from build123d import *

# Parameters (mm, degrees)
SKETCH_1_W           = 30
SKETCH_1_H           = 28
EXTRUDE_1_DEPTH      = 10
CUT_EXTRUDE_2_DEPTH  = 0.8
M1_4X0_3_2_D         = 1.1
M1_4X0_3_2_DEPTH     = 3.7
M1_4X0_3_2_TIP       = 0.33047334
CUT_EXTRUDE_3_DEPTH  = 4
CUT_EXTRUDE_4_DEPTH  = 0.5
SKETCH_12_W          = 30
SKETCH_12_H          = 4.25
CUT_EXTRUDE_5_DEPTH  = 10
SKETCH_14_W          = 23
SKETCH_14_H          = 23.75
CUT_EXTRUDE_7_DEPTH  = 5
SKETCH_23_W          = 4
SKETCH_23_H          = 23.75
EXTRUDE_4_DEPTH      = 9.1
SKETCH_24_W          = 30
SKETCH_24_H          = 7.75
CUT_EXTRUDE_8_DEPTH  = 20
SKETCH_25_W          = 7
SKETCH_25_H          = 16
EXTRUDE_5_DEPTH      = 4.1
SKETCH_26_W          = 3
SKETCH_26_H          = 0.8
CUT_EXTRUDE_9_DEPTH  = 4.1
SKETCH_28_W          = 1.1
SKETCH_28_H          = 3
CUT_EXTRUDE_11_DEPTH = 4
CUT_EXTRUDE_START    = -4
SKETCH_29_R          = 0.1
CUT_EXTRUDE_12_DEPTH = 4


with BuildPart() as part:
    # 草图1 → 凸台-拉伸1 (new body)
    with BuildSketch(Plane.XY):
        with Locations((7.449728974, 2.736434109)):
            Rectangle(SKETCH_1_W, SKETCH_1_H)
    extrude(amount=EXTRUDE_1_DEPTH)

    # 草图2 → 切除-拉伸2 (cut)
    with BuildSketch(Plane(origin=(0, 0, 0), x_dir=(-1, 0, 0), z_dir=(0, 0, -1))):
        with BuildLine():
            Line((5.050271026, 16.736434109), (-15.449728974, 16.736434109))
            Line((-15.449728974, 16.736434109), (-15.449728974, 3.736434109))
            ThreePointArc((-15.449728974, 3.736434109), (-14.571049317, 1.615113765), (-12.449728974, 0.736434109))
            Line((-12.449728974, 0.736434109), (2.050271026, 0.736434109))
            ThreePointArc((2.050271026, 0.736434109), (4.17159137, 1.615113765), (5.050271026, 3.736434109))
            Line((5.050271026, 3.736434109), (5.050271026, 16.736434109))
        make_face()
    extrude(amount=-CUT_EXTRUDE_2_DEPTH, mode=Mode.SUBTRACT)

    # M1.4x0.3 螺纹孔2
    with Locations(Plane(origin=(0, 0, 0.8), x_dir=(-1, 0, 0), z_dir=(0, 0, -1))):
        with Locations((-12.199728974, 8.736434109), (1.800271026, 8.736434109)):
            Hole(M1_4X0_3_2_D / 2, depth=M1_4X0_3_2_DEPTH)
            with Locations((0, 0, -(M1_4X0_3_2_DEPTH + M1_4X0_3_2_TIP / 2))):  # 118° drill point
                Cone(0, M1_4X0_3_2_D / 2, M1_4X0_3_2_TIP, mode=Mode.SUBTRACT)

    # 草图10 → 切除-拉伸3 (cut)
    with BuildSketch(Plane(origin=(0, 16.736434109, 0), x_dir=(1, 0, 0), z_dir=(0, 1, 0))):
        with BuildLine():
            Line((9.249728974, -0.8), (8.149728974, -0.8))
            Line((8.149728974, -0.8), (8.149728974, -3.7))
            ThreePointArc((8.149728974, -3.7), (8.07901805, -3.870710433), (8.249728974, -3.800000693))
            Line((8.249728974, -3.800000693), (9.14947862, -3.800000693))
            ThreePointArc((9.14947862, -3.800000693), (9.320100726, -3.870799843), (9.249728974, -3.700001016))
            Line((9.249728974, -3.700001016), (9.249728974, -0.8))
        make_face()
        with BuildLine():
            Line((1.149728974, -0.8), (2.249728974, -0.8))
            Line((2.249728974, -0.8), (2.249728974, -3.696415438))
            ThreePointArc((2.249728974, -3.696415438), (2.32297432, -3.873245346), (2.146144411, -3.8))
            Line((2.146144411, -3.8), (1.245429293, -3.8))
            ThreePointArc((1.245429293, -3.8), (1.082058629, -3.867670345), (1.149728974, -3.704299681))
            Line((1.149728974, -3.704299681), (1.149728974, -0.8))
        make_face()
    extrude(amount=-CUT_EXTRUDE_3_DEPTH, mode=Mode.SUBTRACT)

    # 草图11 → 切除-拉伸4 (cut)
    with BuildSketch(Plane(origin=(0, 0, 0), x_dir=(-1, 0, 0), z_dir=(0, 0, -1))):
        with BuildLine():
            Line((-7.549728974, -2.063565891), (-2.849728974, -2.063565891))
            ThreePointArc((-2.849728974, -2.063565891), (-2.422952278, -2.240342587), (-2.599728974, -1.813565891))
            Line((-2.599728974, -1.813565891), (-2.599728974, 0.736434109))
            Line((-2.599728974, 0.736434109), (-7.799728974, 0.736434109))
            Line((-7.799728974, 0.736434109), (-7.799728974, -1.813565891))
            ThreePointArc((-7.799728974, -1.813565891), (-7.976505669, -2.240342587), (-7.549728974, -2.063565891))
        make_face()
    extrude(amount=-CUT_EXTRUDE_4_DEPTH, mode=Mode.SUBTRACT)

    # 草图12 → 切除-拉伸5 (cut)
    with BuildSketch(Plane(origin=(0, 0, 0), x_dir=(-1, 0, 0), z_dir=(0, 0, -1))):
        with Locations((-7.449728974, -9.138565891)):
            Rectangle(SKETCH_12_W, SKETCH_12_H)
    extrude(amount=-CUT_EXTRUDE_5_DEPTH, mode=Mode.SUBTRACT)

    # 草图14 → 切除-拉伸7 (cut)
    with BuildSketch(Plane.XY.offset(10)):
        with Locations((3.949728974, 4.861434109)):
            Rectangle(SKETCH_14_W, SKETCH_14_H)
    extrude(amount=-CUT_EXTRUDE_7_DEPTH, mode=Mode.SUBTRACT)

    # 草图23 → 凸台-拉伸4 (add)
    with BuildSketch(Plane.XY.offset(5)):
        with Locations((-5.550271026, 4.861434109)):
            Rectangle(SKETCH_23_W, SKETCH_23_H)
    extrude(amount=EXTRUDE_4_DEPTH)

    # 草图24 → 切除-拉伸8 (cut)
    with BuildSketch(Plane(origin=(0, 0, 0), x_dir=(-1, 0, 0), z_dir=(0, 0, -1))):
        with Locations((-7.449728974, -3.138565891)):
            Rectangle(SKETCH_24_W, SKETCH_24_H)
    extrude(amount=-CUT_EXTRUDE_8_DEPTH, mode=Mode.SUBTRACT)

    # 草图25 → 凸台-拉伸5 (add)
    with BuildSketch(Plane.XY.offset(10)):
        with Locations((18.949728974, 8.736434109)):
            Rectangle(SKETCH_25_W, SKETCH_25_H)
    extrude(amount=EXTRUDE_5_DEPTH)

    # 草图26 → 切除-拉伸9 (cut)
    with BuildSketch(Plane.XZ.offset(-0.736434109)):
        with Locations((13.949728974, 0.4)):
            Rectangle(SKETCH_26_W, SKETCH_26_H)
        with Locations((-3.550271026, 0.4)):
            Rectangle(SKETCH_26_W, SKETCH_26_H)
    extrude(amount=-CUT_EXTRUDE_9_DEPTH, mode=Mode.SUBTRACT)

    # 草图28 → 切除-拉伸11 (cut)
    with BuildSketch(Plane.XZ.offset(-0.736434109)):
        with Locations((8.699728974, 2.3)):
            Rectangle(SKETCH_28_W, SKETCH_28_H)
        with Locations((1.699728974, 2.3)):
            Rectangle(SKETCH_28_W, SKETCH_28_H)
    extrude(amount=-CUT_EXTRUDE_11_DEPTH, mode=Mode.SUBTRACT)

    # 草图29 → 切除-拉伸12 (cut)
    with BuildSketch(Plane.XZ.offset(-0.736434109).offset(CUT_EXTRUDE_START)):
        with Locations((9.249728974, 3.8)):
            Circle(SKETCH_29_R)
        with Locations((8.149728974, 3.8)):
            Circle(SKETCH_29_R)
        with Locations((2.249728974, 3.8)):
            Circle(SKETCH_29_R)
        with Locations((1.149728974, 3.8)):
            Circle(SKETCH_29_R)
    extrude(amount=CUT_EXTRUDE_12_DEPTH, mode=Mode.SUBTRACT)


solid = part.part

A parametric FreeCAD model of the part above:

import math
import FreeCAD as App
import Part
import Sketcher
from FreeCAD import Vector


def add_polygon(sketch, points):
    """Adds a closed chain of lines whose ends are joined by coincident constraints."""
    first, n = sketch.GeometryCount, len(points)
    for a, b in zip(points, points[1:] + points[:1]):
        sketch.addGeometry(Part.LineSegment(App.Vector(*a, 0), App.Vector(*b, 0)), False)
    for i in range(n):
        sketch.addConstraint(Sketcher.Constraint("Coincident", first + i, 2, first + (i + 1) % n, 1))

doc = App.newDocument("Part")
body = doc.addObject("PartDesign::Body", "Body")

sketch1 = doc.addObject("Sketcher::SketchObject", "Sketch")
body.addObject(sketch1)
sketch1.AttachmentSupport = (doc.XY_Plane, [""])
sketch1.MapMode = "FlatFace"
add_polygon(sketch1, [(-8, 17), (-8, -11), (22, -11), (22, 17)])
sketch1.addConstraint(Sketcher.Constraint("Vertical", 0))
sketch1.addConstraint(Sketcher.Constraint("Horizontal", 1))
sketch1.addConstraint(Sketcher.Constraint("Vertical", 2))
sketch1.addConstraint(Sketcher.Constraint("Horizontal", 3))
sketch1.addConstraint(Sketcher.Constraint("DistanceX", 1, 1, 1, 2, 30.0))
sketch1.addConstraint(Sketcher.Constraint("DistanceY", 0, 2, 0, 1, 28.0))
sketch1.addConstraint(Sketcher.Constraint("DistanceX", 0, 2, -1, 1, 7.550271))
sketch1.addConstraint(Sketcher.Constraint("DistanceY", 0, 2, -1, 1, 11.263566))
pad1 = doc.addObject("PartDesign::Pad", "Pad")
body.addObject(pad1)
pad1.Profile = sketch1
pad1.Length = 10

sketch2 = doc.addObject("Sketcher::SketchObject", "Sketch001")
body.addObject(sketch2)
sketch2.AttachmentSupport = (doc.XY_Plane, [""])
sketch2.MapMode = "FlatFace"
sketch2.addGeometry(Part.LineSegment(Vector(-5.1, 16.7, 0), Vector(15.4, 16.7, 0)), False)
sketch2.addGeometry(Part.LineSegment(Vector(15.4, 16.7, 0), Vector(15.4, 3.7, 0)), False)
sketch2.addGeometry(Part.ArcOfCircle(Part.Circle(Vector(12.4, 3.7, 0), Vector(0, 0, 1), 3), math.radians(-90), math.radians(0)), False)
sketch2.addGeometry(Part.LineSegment(Vector(12.4, 0.7, 0), Vector(-2.1, 0.7, 0)), False)
sketch2.addGeometry(Part.ArcOfCircle(Part.Circle(Vector(-2.1, 3.7, 0), Vector(0, 0, 1), 3), math.radians(180), math.radians(270)), False)
sketch2.addGeometry(Part.LineSegment(Vector(-5.1, 3.7, 0), Vector(-5.1, 16.7, 0)), False)
sketch2.addConstraint(Sketcher.Constraint("Coincident", 0, 2, 1, 1))
sketch2.addConstraint(Sketcher.Constraint("Tangent", 1, 2, 2, 2))
sketch2.addConstraint(Sketcher.Constraint("Tangent", 2, 1, 3, 1))
sketch2.addConstraint(Sketcher.Constraint("Tangent", 3, 2, 4, 2))
sketch2.addConstraint(Sketcher.Constraint("Tangent", 4, 1, 5, 1))
sketch2.addConstraint(Sketcher.Constraint("Coincident", 5, 2, 0, 1))
sketch2.addConstraint(Sketcher.Constraint("Horizontal", 0))
sketch2.addConstraint(Sketcher.Constraint("Vertical", 1))
sketch2.addConstraint(Sketcher.Constraint("Horizontal", 3))
sketch2.addConstraint(Sketcher.Constraint("Vertical", 5))
sketch2.addConstraint(Sketcher.Constraint("Equal", 2, 4))
sketch2.addConstraint(Sketcher.Constraint("Radius", 2, 3.0))
sketch2.addConstraint(Sketcher.Constraint("DistanceY", 1, 2, 1, 1, 13.0))
sketch2.addConstraint(Sketcher.Constraint("DistanceX", 0, 1, 0, 2, 20.5))
sketch2.addConstraint(Sketcher.Constraint("DistanceX", -1, 1, 2, 3, 12.449729))
sketch2.addConstraint(Sketcher.Constraint("DistanceY", -1, 1, 2, 3, 3.736434))
pocket1 = doc.addObject("PartDesign::Pocket", "Pocket")
body.addObject(pocket1)
pocket1.Profile = sketch2
pocket1.Length = 0.8
pocket1.Reversed = True

sketch3 = doc.addObject("Sketcher::SketchObject", "Sketch002")
body.addObject(sketch3)
sketch3.AttachmentSupport = (doc.XY_Plane, [""])
sketch3.MapMode = "FlatFace"
sketch3.AttachmentOffset = App.Placement(Vector(0, 0, 0.8), App.Rotation())
sketch3.addGeometry(Part.Circle(Vector(12.2, 8.7, 0), Vector(0, 0, 1), 0.6), False)
sketch3.addGeometry(Part.Circle(Vector(-1.8, 8.7, 0), Vector(0, 0, 1), 0.6), False)
sketch3.addConstraint(Sketcher.Constraint("Equal", 0, 1))
sketch3.addConstraint(Sketcher.Constraint("Horizontal", 0, 3, 1, 3))
sketch3.addConstraint(Sketcher.Constraint("Diameter", 0, 1.1))
sketch3.addConstraint(Sketcher.Constraint("DistanceX", 1, 3, 0, 3, 14.0))
sketch3.addConstraint(Sketcher.Constraint("DistanceX", -1, 1, 0, 3, 12.199729))
sketch3.addConstraint(Sketcher.Constraint("DistanceY", -1, 1, 0, 3, 8.736434))
doc.recompute()
hole = doc.addObject("PartDesign::Hole", "Hole")
body.addObject(hole)
hole.Profile = sketch3
hole.ThreadType = "None"
hole.Diameter = 1.1
hole.DepthType = "Dimension"
hole.Depth = 3.7
hole.DrillPoint = "Angled"
hole.DrillPointAngle = 118
hole.Reversed = True

sketch4 = doc.addObject("Sketcher::SketchObject", "Sketch003")
body.addObject(sketch4)
sketch4.AttachmentSupport = (doc.XZ_Plane, [""])
sketch4.MapMode = "FlatFace"
sketch4.AttachmentOffset = App.Placement(Vector(0, 0, -16.736434), App.Rotation())
sketch4.addGeometry(Part.LineSegment(Vector(9.25, 0.8, 0), Vector(8.15, 0.8, 0)), False)
sketch4.addGeometry(Part.LineSegment(Vector(8.15, 0.8, 0), Vector(8.15, 3.7, 0)), False)
sketch4.addGeometry(Part.ArcOfCircle(Part.Circle(Vector(8.15, 3.8, 0), Vector(0, 0, 1), 0.1), math.radians(0), math.radians(270)), False)
sketch4.addGeometry(Part.LineSegment(Vector(8.25, 3.8, 0), Vector(9.15, 3.8, 0)), False)
sketch4.addGeometry(Part.ArcOfCircle(Part.Circle(Vector(9.25, 3.8, 0), Vector(0, 0, 1), 0.1), math.radians(-90), math.radians(180)), False)
sketch4.addGeometry(Part.LineSegment(Vector(9.25, 3.7, 0), Vector(9.25, 0.8, 0)), False)
sketch4.addGeometry(Part.LineSegment(Vector(2.25, 0.8, 0), Vector(1.15, 0.8, 0)), False)
sketch4.addGeometry(Part.LineSegment(Vector(1.15, 0.8, 0), Vector(1.15, 3.7, 0)), False)
sketch4.addGeometry(Part.ArcOfCircle(Part.Circle(Vector(1.15, 3.8, 0), Vector(0, 0, 1), 0.1), math.radians(0), math.radians(270)), False)
sketch4.addGeometry(Part.LineSegment(Vector(1.25, 3.8, 0), Vector(2.15, 3.8, 0)), False)
sketch4.addGeometry(Part.ArcOfCircle(Part.Circle(Vector(2.25, 3.8, 0), Vector(0, 0, 1), 0.1), math.radians(-90), math.radians(180)), False)
sketch4.addGeometry(Part.LineSegment(Vector(2.25, 3.7, 0), Vector(2.25, 0.8, 0)), False)
sketch4.addConstraint(Sketcher.Constraint("Coincident", 0, 2, 1, 1))
sketch4.addConstraint(Sketcher.Constraint("Coincident", 1, 2, 2, 2))
sketch4.addConstraint(Sketcher.Constraint("Coincident", 2, 1, 3, 1))
sketch4.addConstraint(Sketcher.Constraint("Coincident", 3, 2, 4, 2))
sketch4.addConstraint(Sketcher.Constraint("Coincident", 4, 1, 5, 1))
sketch4.addConstraint(Sketcher.Constraint("Coincident", 5, 2, 0, 1))
sketch4.addConstraint(Sketcher.Constraint("Coincident", 6, 2, 7, 1))
sketch4.addConstraint(Sketcher.Constraint("Coincident", 7, 2, 8, 2))
sketch4.addConstraint(Sketcher.Constraint("Coincident", 8, 1, 9, 1))
sketch4.addConstraint(Sketcher.Constraint("Coincident", 9, 2, 10, 2))
sketch4.addConstraint(Sketcher.Constraint("Coincident", 10, 1, 11, 1))
sketch4.addConstraint(Sketcher.Constraint("Coincident", 11, 2, 6, 1))
sketch4.addConstraint(Sketcher.Constraint("Horizontal", 0))
sketch4.addConstraint(Sketcher.Constraint("Vertical", 1))
sketch4.addConstraint(Sketcher.Constraint("Horizontal", 3))
sketch4.addConstraint(Sketcher.Constraint("Vertical", 5))
sketch4.addConstraint(Sketcher.Constraint("Horizontal", 6))
sketch4.addConstraint(Sketcher.Constraint("Vertical", 7))
sketch4.addConstraint(Sketcher.Constraint("Horizontal", 9))
sketch4.addConstraint(Sketcher.Constraint("Vertical", 11))
sketch4.addConstraint(Sketcher.Constraint("Equal", 2, 4))
sketch4.addConstraint(Sketcher.Constraint("Horizontal", 2, 3, 4, 3))
sketch4.addConstraint(Sketcher.Constraint("Horizontal", 4, 3, 8, 3))
sketch4.addConstraint(Sketcher.Constraint("Horizontal", 8, 3, 10, 3))
sketch4.addConstraint(Sketcher.Constraint("Horizontal", 10, 3, 2, 1))
sketch4.addConstraint(Sketcher.Constraint("Horizontal", 5, 2, 6, 2))
sketch4.addConstraint(Sketcher.Constraint("Horizontal", 3, 2, 8, 1))
sketch4.addConstraint(Sketcher.Constraint("Vertical", 2, 3, 0, 2))
sketch4.addConstraint(Sketcher.Constraint("Vertical", 8, 3, 6, 2))
sketch4.addConstraint(Sketcher.Constraint("Equal", 0, 6))
sketch4.addConstraint(Sketcher.Constraint("Radius", 2, 0.1))
sketch4.addConstraint(Sketcher.Constraint("DistanceX", 0, 2, 0, 1, 1.1))
sketch4.addConstraint(Sketcher.Constraint("DistanceY", 1, 1, 1, 2, 2.9))
sketch4.addConstraint(Sketcher.Constraint("DistanceX", 8, 3, 2, 3, 7.0))
sketch4.addConstraint(Sketcher.Constraint("DistanceX", 10, 3, 2, 1, 6.0))
sketch4.addConstraint(Sketcher.Constraint("DistanceY", -1, 1, 2, 3, 3.8))
sketch4.addConstraint(Sketcher.Constraint("Radius", 8, 0.0957))
sketch4.addConstraint(Sketcher.Constraint("Radius", 10, 0.103585))
sketch4.addConstraint(Sketcher.Constraint("DistanceX", 3, 1, 3, 2, 0.89975))
sketch4.addConstraint(Sketcher.Constraint("DistanceX", -1, 1, 2, 3, 8.149729))
pocket2 = doc.addObject("PartDesign::Pocket", "Pocket001")
body.addObject(pocket2)
pocket2.Profile = sketch4
pocket2.Length = 4
pocket2.Reversed = True

sketch5 = doc.addObject("Sketcher::SketchObject", "Sketch004")
body.addObject(sketch5)
sketch5.AttachmentSupport = (doc.XY_Plane, [""])
sketch5.MapMode = "FlatFace"
sketch5.addGeometry(Part.LineSegment(Vector(7.55, -2.06, 0), Vector(2.85, -2.06, 0)), False)
sketch5.addGeometry(Part.ArcOfCircle(Part.Circle(Vector(2.6, -2.06, 0), Vector(0, 0, 1), 0.25), math.radians(90), math.radians(360)), False)
sketch5.addGeometry(Part.LineSegment(Vector(2.6, -1.81, 0), Vector(2.6, 0.74, 0)), False)
sketch5.addGeometry(Part.LineSegment(Vector(2.6, 0.74, 0), Vector(7.8, 0.74, 0)), False)
sketch5.addGeometry(Part.LineSegment(Vector(7.8, 0.74, 0), Vector(7.8, -1.81, 0)), False)
sketch5.addGeometry(Part.ArcOfCircle(Part.Circle(Vector(7.8, -2.06, 0), Vector(0, 0, 1), 0.25), math.radians(180), math.radians(450)), False)
sketch5.addConstraint(Sketcher.Constraint("Coincident", 0, 2, 1, 2))
sketch5.addConstraint(Sketcher.Constraint("Coincident", 1, 1, 2, 1))
sketch5.addConstraint(Sketcher.Constraint("Coincident", 2, 2, 3, 1))
sketch5.addConstraint(Sketcher.Constraint("Coincident", 3, 2, 4, 1))
sketch5.addConstraint(Sketcher.Constraint("Coincident", 4, 2, 5, 2))
sketch5.addConstraint(Sketcher.Constraint("Coincident", 5, 1, 0, 1))
sketch5.addConstraint(Sketcher.Constraint("Horizontal", 0))
sketch5.addConstraint(Sketcher.Constraint("Vertical", 2))
sketch5.addConstraint(Sketcher.Constraint("Horizontal", 3))
sketch5.addConstraint(Sketcher.Constraint("Vertical", 4))
sketch5.addConstraint(Sketcher.Constraint("Equal", 1, 5))
sketch5.addConstraint(Sketcher.Constraint("Horizontal", 1, 3, 5, 3))
sketch5.addConstraint(Sketcher.Constraint("Horizontal", 5, 3, 0, 2))
sketch5.addConstraint(Sketcher.Constraint("Vertical", 5, 3, 3, 2))
sketch5.addConstraint(Sketcher.Constraint("Radius", 1, 0.25))
sketch5.addConstraint(Sketcher.Constraint("DistanceX", 0, 2, 0, 1, 4.7))
sketch5.addConstraint(Sketcher.Constraint("DistanceX", 3, 1, 3, 2, 5.2))
sketch5.addConstraint(Sketcher.Constraint("DistanceY", 2, 1, 2, 2, 2.55))
sketch5.addConstraint(Sketcher.Constraint("DistanceX", -1, 1, 1, 3, 2.599729))
sketch5.addConstraint(Sketcher.Constraint("DistanceY", 1, 3, -1, 1, 2.063566))
pocket3 = doc.addObject("PartDesign::Pocket", "Pocket002")
body.addObject(pocket3)
pocket3.Profile = sketch5
pocket3.Length = 0.5
pocket3.Reversed = True

sketch6 = doc.addObject("Sketcher::SketchObject", "Sketch005")
body.addObject(sketch6)
sketch6.AttachmentSupport = (doc.XY_Plane, [""])
sketch6.MapMode = "FlatFace"
add_polygon(sketch6, [(22.4, -7), (22.4, -11.3), (-7.6, -11.3), (-7.6, -7)])
sketch6.addConstraint(Sketcher.Constraint("Vertical", 0))
sketch6.addConstraint(Sketcher.Constraint("Horizontal", 1))
sketch6.addConstraint(Sketcher.Constraint("Vertical", 2))
sketch6.addConstraint(Sketcher.Constraint("Horizontal", 3))
sketch6.addConstraint(Sketcher.Constraint("DistanceX", 1, 2, 1, 1, 30.0))
sketch6.addConstraint(Sketcher.Constraint("DistanceY", 0, 2, 0, 1, 4.25))
sketch6.addConstraint(Sketcher.Constraint("DistanceX", -1, 1, 0, 2, 22.449729))
sketch6.addConstraint(Sketcher.Constraint("DistanceY", 0, 2, -1, 1, 11.263566))
pocket4 = doc.addObject("PartDesign::Pocket", "Pocket003")
body.addObject(pocket4)
pocket4.Profile = sketch6
pocket4.Length = 10
pocket4.Reversed = True

sketch7 = doc.addObject("Sketcher::SketchObject", "Sketch006")
body.addObject(sketch7)
sketch7.AttachmentSupport = (doc.XY_Plane, [""])
sketch7.MapMode = "FlatFace"
sketch7.AttachmentOffset = App.Placement(Vector(0, 0, 10), App.Rotation())
add_polygon(sketch7, [(-8, 17), (-8, -7), (15, -7), (15, 17)])
sketch7.addConstraint(Sketcher.Constraint("Vertical", 0))
sketch7.addConstraint(Sketcher.Constraint("Horizontal", 1))
sketch7.addConstraint(Sketcher.Constraint("Vertical", 2))
sketch7.addConstraint(Sketcher.Constraint("Horizontal", 3))
sketch7.addConstraint(Sketcher.Constraint("DistanceX", 1, 1, 1, 2, 23.0))
sketch7.addConstraint(Sketcher.Constraint("DistanceY", 0, 2, 0, 1, 23.75))
sketch7.addConstraint(Sketcher.Constraint("DistanceX", 0, 2, -1, 1, 7.550271))
sketch7.addConstraint(Sketcher.Constraint("DistanceY", 0, 2, -1, 1, 7.013566))
pocket5 = doc.addObject("PartDesign::Pocket", "Pocket004")
body.addObject(pocket5)
pocket5.Profile = sketch7
pocket5.Length = 5

sketch8 = doc.addObject("Sketcher::SketchObject", "Sketch007")
body.addObject(sketch8)
sketch8.AttachmentSupport = (doc.XY_Plane, [""])
sketch8.MapMode = "FlatFace"
sketch8.AttachmentOffset = App.Placement(Vector(0, 0, 5), App.Rotation())
add_polygon(sketch8, [(-7.6, 16.7), (-7.6, -7), (-3.6, -7), (-3.6, 16.7)])
sketch8.addConstraint(Sketcher.Constraint("Vertical", 0))
sketch8.addConstraint(Sketcher.Constraint("Horizontal", 1))
sketch8.addConstraint(Sketcher.Constraint("Vertical", 2))
sketch8.addConstraint(Sketcher.Constraint("Horizontal", 3))
sketch8.addConstraint(Sketcher.Constraint("DistanceX", 1, 1, 1, 2, 4.0))
sketch8.addConstraint(Sketcher.Constraint("DistanceY", 0, 2, 0, 1, 23.75))
sketch8.addConstraint(Sketcher.Constraint("DistanceX", 0, 2, -1, 1, 7.550271))
sketch8.addConstraint(Sketcher.Constraint("DistanceY", 0, 2, -1, 1, 7.013566))
pad2 = doc.addObject("PartDesign::Pad", "Pad001")
body.addObject(pad2)
pad2.Profile = sketch8
pad2.Length = 9.1

sketch9 = doc.addObject("Sketcher::SketchObject", "Sketch008")
body.addObject(sketch9)
sketch9.AttachmentSupport = (doc.XY_Plane, [""])
sketch9.MapMode = "FlatFace"
add_polygon(sketch9, [(22, 1), (22, -7), (-8, -7), (-8, 1)])
sketch9.addConstraint(Sketcher.Constraint("Vertical", 0))
sketch9.addConstraint(Sketcher.Constraint("Horizontal", 1))
sketch9.addConstraint(Sketcher.Constraint("Vertical", 2))
sketch9.addConstraint(Sketcher.Constraint("Horizontal", 3))
sketch9.addConstraint(Sketcher.Constraint("DistanceX", 1, 2, 1, 1, 30.0))
sketch9.addConstraint(Sketcher.Constraint("DistanceY", 0, 2, 0, 1, 7.75))
sketch9.addConstraint(Sketcher.Constraint("DistanceX", -1, 1, 0, 2, 22.449729))
sketch9.addConstraint(Sketcher.Constraint("DistanceY", 0, 2, -1, 1, 7.013566))
pocket6 = doc.addObject("PartDesign::Pocket", "Pocket005")
body.addObject(pocket6)
pocket6.Profile = sketch9
pocket6.Length = 20
pocket6.Reversed = True

sketch10 = doc.addObject("Sketcher::SketchObject", "Sketch009")
body.addObject(sketch10)
sketch10.AttachmentSupport = (doc.XY_Plane, [""])
sketch10.MapMode = "FlatFace"
sketch10.AttachmentOffset = App.Placement(Vector(0, 0, 10), App.Rotation())
add_polygon(sketch10, [(15, 17), (15, 1), (22, 1), (22, 17)])
sketch10.addConstraint(Sketcher.Constraint("Vertical", 0))
sketch10.addConstraint(Sketcher.Constraint("Horizontal", 1))
sketch10.addConstraint(Sketcher.Constraint("Vertical", 2))
sketch10.addConstraint(Sketcher.Constraint("Horizontal", 3))
sketch10.addConstraint(Sketcher.Constraint("DistanceX", 1, 1, 1, 2, 7.0))
sketch10.addConstraint(Sketcher.Constraint("DistanceY", 0, 2, 0, 1, 16.0))
sketch10.addConstraint(Sketcher.Constraint("DistanceX", -1, 1, 0, 2, 15.449729))
sketch10.addConstraint(Sketcher.Constraint("DistanceY", -1, 1, 0, 2, 0.736434))
pad3 = doc.addObject("PartDesign::Pad", "Pad002")
body.addObject(pad3)
pad3.Profile = sketch10
pad3.Length = 4.1

sketch11 = doc.addObject("Sketcher::SketchObject", "Sketch010")
body.addObject(sketch11)
sketch11.AttachmentSupport = (doc.XZ_Plane, [""])
sketch11.MapMode = "FlatFace"
sketch11.AttachmentOffset = App.Placement(Vector(0, 0, -0.736434), App.Rotation())
add_polygon(sketch11, [(12.4, 0.8), (12.4, 0), (15.4, 0), (15.4, 0.8)])
add_polygon(sketch11, [(-5.1, 0.8), (-5.1, 0), (-2.1, 0), (-2.1, 0.8)])
sketch11.addConstraint(Sketcher.Constraint("Vertical", 0))
sketch11.addConstraint(Sketcher.Constraint("Horizontal", 1))
sketch11.addConstraint(Sketcher.Constraint("Vertical", 2))
sketch11.addConstraint(Sketcher.Constraint("Horizontal", 3))
sketch11.addConstraint(Sketcher.Constraint("Vertical", 4))
sketch11.addConstraint(Sketcher.Constraint("Horizontal", 5))
sketch11.addConstraint(Sketcher.Constraint("Vertical", 6))
sketch11.addConstraint(Sketcher.Constraint("Horizontal", 7))
sketch11.addConstraint(Sketcher.Constraint("PointOnObject", 0, 2, -1))
sketch11.addConstraint(Sketcher.Constraint("PointOnObject", 4, 2, -1))
sketch11.addConstraint(Sketcher.Constraint("Horizontal", 3, 2, 6, 2))
sketch11.addConstraint(Sketcher.Constraint("Equal", 3, 5))
sketch11.addConstraint(Sketcher.Constraint("DistanceX", 1, 1, 1, 2, 3.0))
sketch11.addConstraint(Sketcher.Constraint("DistanceY", 0, 2, 0, 1, 0.8))
sketch11.addConstraint(Sketcher.Constraint("DistanceX", 4, 2, 0, 2, 17.5))
sketch11.addConstraint(Sketcher.Constraint("DistanceX", -1, 1, 0, 2, 12.449729))
pocket7 = doc.addObject("PartDesign::Pocket", "Pocket006")
body.addObject(pocket7)
pocket7.Profile = sketch11
pocket7.Length = 4.1

sketch12 = doc.addObject("Sketcher::SketchObject", "Sketch011")
body.addObject(sketch12)
sketch12.AttachmentSupport = (doc.XZ_Plane, [""])
sketch12.MapMode = "FlatFace"
sketch12.AttachmentOffset = App.Placement(Vector(0, 0, -0.736434), App.Rotation())
add_polygon(sketch12, [(8.1, 3.8), (8.1, 0.8), (9.2, 0.8), (9.2, 3.8)])
add_polygon(sketch12, [(1.1, 3.8), (1.1, 0.8), (2.2, 0.8), (2.2, 3.8)])
sketch12.addConstraint(Sketcher.Constraint("Vertical", 0))
sketch12.addConstraint(Sketcher.Constraint("Horizontal", 1))
sketch12.addConstraint(Sketcher.Constraint("Vertical", 2))
sketch12.addConstraint(Sketcher.Constraint("Horizontal", 3))
sketch12.addConstraint(Sketcher.Constraint("Vertical", 4))
sketch12.addConstraint(Sketcher.Constraint("Horizontal", 5))
sketch12.addConstraint(Sketcher.Constraint("Vertical", 6))
sketch12.addConstraint(Sketcher.Constraint("Horizontal", 7))
sketch12.addConstraint(Sketcher.Constraint("Horizontal", 1, 2, 4, 2))
sketch12.addConstraint(Sketcher.Constraint("Horizontal", 3, 2, 6, 2))
sketch12.addConstraint(Sketcher.Constraint("Equal", 3, 5))
sketch12.addConstraint(Sketcher.Constraint("DistanceY", 0, 2, 0, 1, 3.0))
sketch12.addConstraint(Sketcher.Constraint("DistanceX", 1, 1, 1, 2, 1.1))
sketch12.addConstraint(Sketcher.Constraint("DistanceX", 4, 2, 0, 2, 7.0))
sketch12.addConstraint(Sketcher.Constraint("DistanceY", -1, 1, 0, 2, 0.8))
sketch12.addConstraint(Sketcher.Constraint("DistanceX", -1, 1, 0, 2, 8.149729))
pocket8 = doc.addObject("PartDesign::Pocket", "Pocket007")
body.addObject(pocket8)
pocket8.Profile = sketch12
pocket8.Length = 4

sketch13 = doc.addObject("Sketcher::SketchObject", "Sketch012")
body.addObject(sketch13)
sketch13.AttachmentSupport = (doc.XZ_Plane, [""])
sketch13.MapMode = "FlatFace"
sketch13.AttachmentOffset = App.Placement(Vector(0, 0, -4.736434), App.Rotation())
sketch13.addGeometry(Part.Circle(Vector(9.25, 3.8, 0), Vector(0, 0, 1), 0.1), False)
sketch13.addGeometry(Part.Circle(Vector(8.15, 3.8, 0), Vector(0, 0, 1), 0.1), False)
sketch13.addGeometry(Part.Circle(Vector(2.25, 3.8, 0), Vector(0, 0, 1), 0.1), False)
sketch13.addGeometry(Part.Circle(Vector(1.15, 3.8, 0), Vector(0, 0, 1), 0.1), False)
sketch13.addConstraint(Sketcher.Constraint("Equal", 0, 1))
sketch13.addConstraint(Sketcher.Constraint("Equal", 1, 2))
sketch13.addConstraint(Sketcher.Constraint("Equal", 2, 3))
sketch13.addConstraint(Sketcher.Constraint("Horizontal", 0, 3, 1, 3))
sketch13.addConstraint(Sketcher.Constraint("Horizontal", 1, 3, 2, 3))
sketch13.addConstraint(Sketcher.Constraint("Horizontal", 2, 3, 3, 3))
sketch13.addConstraint(Sketcher.Constraint("Diameter", 0, 0.2))
sketch13.addConstraint(Sketcher.Constraint("DistanceX", 2, 3, 0, 3, 7.0))
sketch13.addConstraint(Sketcher.Constraint("DistanceX", 3, 3, 1, 3, 7.0))
sketch13.addConstraint(Sketcher.Constraint("DistanceY", -1, 1, 0, 3, 3.8))
sketch13.addConstraint(Sketcher.Constraint("DistanceX", 1, 3, 0, 3, 1.1))
sketch13.addConstraint(Sketcher.Constraint("DistanceX", -1, 1, 0, 3, 9.249729))
pocket9 = doc.addObject("PartDesign::Pocket", "Pocket008")
body.addObject(pocket9)
pocket9.Profile = sketch13
pocket9.Length = 4
pocket9.Reversed = True

doc.recompute()
